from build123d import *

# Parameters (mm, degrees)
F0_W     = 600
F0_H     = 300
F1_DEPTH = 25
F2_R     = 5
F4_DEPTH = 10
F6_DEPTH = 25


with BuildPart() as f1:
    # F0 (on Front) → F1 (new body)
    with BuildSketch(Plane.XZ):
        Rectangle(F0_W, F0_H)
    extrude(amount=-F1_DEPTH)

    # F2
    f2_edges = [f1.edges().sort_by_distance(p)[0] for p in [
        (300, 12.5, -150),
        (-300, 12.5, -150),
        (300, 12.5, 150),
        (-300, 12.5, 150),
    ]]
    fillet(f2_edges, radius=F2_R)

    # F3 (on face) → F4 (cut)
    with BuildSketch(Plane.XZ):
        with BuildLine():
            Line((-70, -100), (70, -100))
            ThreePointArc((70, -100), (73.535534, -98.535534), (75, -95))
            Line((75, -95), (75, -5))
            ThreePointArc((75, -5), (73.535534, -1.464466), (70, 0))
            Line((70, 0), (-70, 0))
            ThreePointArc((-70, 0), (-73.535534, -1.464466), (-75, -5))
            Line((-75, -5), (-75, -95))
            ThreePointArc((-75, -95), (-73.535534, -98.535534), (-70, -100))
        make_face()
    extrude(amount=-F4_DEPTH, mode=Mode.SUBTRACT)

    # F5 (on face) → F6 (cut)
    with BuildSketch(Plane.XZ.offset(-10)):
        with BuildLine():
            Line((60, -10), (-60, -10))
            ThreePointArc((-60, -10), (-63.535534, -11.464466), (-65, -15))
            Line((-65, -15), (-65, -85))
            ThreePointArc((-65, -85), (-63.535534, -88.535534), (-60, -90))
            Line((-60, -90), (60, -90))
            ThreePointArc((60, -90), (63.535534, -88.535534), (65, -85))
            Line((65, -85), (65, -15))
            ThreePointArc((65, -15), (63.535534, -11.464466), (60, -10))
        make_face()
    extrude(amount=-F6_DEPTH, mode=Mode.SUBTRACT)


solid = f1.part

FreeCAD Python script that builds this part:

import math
import FreeCAD as App
import Part
import Sketcher

V = App.Vector
Q = App.Units.Quantity


def edges_at(feature, points):
    """Names of the edges that pass closest to the given points."""
    edges = feature.Shape.Edges
    near = lambda p: min(range(len(edges)), key=lambda i: edges[i].distToShape(Part.Vertex(*p))[0])
    return sorted({f"Edge{near(p) + 1}" for p in points})

doc = App.newDocument("Part")
body = doc.addObject("PartDesign::Body", "Body")

sketch1 = doc.addObject("Sketcher::SketchObject", "Sketch")
body.addObject(sketch1)
sketch1.AttachmentSupport = (doc.XZ_Plane, [""])
sketch1.MapMode = "FlatFace"
sketch1.addGeometry([
    Part.LineSegment(V(-300, 150, 0), V(-300, -150, 0)),
    Part.LineSegment(V(-300, -150, 0), V(300, -150, 0)),
    Part.LineSegment(V(300, -150, 0), V(300, 150, 0)),
    Part.LineSegment(V(300, 150, 0), V(-300, 150, 0)),
], False)
sketch1.addConstraint([
    Sketcher.Constraint("Coincident", 0, 2, 1, 1),
    Sketcher.Constraint("Coincident", 1, 2, 2, 1),
    Sketcher.Constraint("Coincident", 2, 2, 3, 1),
    Sketcher.Constraint("Coincident", 3, 2, 0, 1),
    Sketcher.Constraint("Vertical", 0),
    Sketcher.Constraint("Horizontal", 1),
    Sketcher.Constraint("Vertical", 2),
    Sketcher.Constraint("Horizontal", 3),
    Sketcher.Constraint("Symmetric", 0, 2, 2, 2, -1, 1),
    Sketcher.Constraint("DistanceX", 1, 1, 1, 2, Q("600 mm")),
    Sketcher.Constraint("DistanceY", 0, 2, 0, 1, Q("300 mm")),
])
pad1 = doc.addObject("PartDesign::Pad", "Pad")
body.addObject(pad1)
pad1.Profile = sketch1
pad1.Length = 25
pad1.Reversed = True
doc.recompute()

fillet = doc.addObject("PartDesign::Fillet", "Fillet")
body.addObject(fillet)
fillet.Base = (pad1, edges_at(pad1, [
    (300, 12.5, -150),
    (-300, 12.5, -150),
    (300, 12.5, 150),
    (-300, 12.5, 150),
]))
fillet.Radius = 5

sketch2 = doc.addObject("Sketcher::SketchObject", "Sketch001")
body.addObject(sketch2)
sketch2.AttachmentSupport = (doc.XZ_Plane, [""])
sketch2.MapMode = "FlatFace"
sketch2.addGeometry([
    Part.LineSegment(V(-70, -100, 0), V(70, -100, 0)),
    Part.ArcOfCircle(Part.Circle(V(70, -95, 0), V(0, 0, 1), 5), math.radians(-90), math.radians(0)),
    Part.LineSegment(V(75, -95, 0), V(75, -5, 0)),
    Part.ArcOfCircle(Part.Circle(V(70, -5, 0), V(0, 0, 1), 5), math.radians(0), math.radians(90)),
    Part.LineSegment(V(70, 0, 0), V(-70, 0, 0)),
    Part.ArcOfCircle(Part.Circle(V(-70, -5, 0), V(0, 0, 1), 5), math.radians(90), math.radians(180)),
    Part.LineSegment(V(-75, -5, 0), V(-75, -95, 0)),
    Part.ArcOfCircle(Part.Circle(V(-70, -95, 0), V(0, 0, 1), 5), math.radians(180), math.radians(270)),
], False)
sketch2.addConstraint([
    Sketcher.Constraint("Tangent", 0, 2, 1, 1),
    Sketcher.Constraint("Tangent", 1, 2, 2, 1),
    Sketcher.Constraint("Tangent", 2, 2, 3, 1),
    Sketcher.Constraint("Tangent", 3, 2, 4, 1),
    Sketcher.Constraint("Tangent", 4, 2, 5, 1),
    Sketcher.Constraint("Tangent", 5, 2, 6, 1),
    Sketcher.Constraint("Tangent", 6, 2, 7, 1),
    Sketcher.Constraint("Tangent", 7, 2, 0, 1),
    Sketcher.Constraint("Horizontal", 0),
    Sketcher.Constraint("Vertical", 2),
    Sketcher.Constraint("Horizontal", 4),
    Sketcher.Constraint("Vertical", 6),
    Sketcher.Constraint("Equal", 1, 3),
    Sketcher.Constraint("Equal", 3, 5),
    Sketcher.Constraint("Equal", 5, 7),
    Sketcher.Constraint("Symmetric", 3, 2, 4, 2, -1, 1),
    Sketcher.Constraint("Radius", 1, Q("5 mm")),
    Sketcher.Constraint("DistanceX", 0, 1, 0, 2, Q("140 mm")),
    Sketcher.Constraint("DistanceY", 2, 1, 2, 2, Q("90 mm")),
])
pocket1 = doc.addObject("PartDesign::Pocket", "Pocket")
body.addObject(pocket1)
pocket1.Profile = sketch2
pocket1.Length = 10

sketch3 = doc.addObject("Sketcher::SketchObject", "Sketch002")
body.addObject(sketch3)
sketch3.AttachmentSupport = (doc.XZ_Plane, [""])
sketch3.MapMode = "FlatFace"
sketch3.AttachmentOffset = App.Placement(V(0, 0, -10), App.Rotation())
sketch3.addGeometry([
    Part.LineSegment(V(60, -10, 0), V(-60, -10, 0)),
    Part.ArcOfCircle(Part.Circle(V(-60, -15, 0), V(0, 0, 1), 5), math.radians(90), math.radians(180)),
    Part.LineSegment(V(-65, -15, 0), V(-65, -85, 0)),
    Part.ArcOfCircle(Part.Circle(V(-60, -85, 0), V(0, 0, 1), 5), math.radians(180), math.radians(270)),
    Part.LineSegment(V(-60, -90, 0), V(60, -90, 0)),
    Part.ArcOfCircle(Part.Circle(V(60, -85, 0), V(0, 0, 1), 5), math.radians(-90), math.radians(0)),
    Part.LineSegment(V(65, -85, 0), V(65, -15, 0)),
    Part.ArcOfCircle(Part.Circle(V(60, -15, 0), V(0, 0, 1), 5), math.radians(0), math.radians(90)),
], False)
sketch3.addConstraint([
    Sketcher.Constraint("Tangent", 0, 2, 1, 1),
    Sketcher.Constraint("Tangent", 1, 2, 2, 1),
    Sketcher.Constraint("Tangent", 2, 2, 3, 1),
    Sketcher.Constraint("Tangent", 3, 2, 4, 1),
    Sketcher.Constraint("Tangent", 4, 2, 5, 1),
    Sketcher.Constraint("Tangent", 5, 2, 6, 1),
    Sketcher.Constraint("Tangent", 6, 2, 7, 1),
    Sketcher.Constraint("Tangent", 7, 2, 0, 1),
    Sketcher.Constraint("Horizontal", 0),
    Sketcher.Constraint("Vertical", 2),
    Sketcher.Constraint("Horizontal", 4),
    Sketcher.Constraint("Vertical", 6),
    Sketcher.Constraint("Equal", 1, 3),
    Sketcher.Constraint("Equal", 3, 5),
    Sketcher.Constraint("Equal", 5, 7),
    Sketcher.Constraint("Radius", 1, Q("5 mm")),
    Sketcher.Constraint("DistanceX", 0, 2, 0, 1, Q("120 mm")),
    Sketcher.Constraint("DistanceY", 2, 2, 2, 1, Q("70 mm")),
    Sketcher.Constraint("DistanceX", 1, 3, -1, 1, Q("60 mm")),
    Sketcher.Constraint("DistanceY", 1, 3, -1, 1, Q("15 mm")),
])
pocket2 = doc.addObject("PartDesign::Pocket", "Pocket001")
body.addObject(pocket2)
pocket2.Profile = sketch3
pocket2.Length = 25

doc.recompute()
